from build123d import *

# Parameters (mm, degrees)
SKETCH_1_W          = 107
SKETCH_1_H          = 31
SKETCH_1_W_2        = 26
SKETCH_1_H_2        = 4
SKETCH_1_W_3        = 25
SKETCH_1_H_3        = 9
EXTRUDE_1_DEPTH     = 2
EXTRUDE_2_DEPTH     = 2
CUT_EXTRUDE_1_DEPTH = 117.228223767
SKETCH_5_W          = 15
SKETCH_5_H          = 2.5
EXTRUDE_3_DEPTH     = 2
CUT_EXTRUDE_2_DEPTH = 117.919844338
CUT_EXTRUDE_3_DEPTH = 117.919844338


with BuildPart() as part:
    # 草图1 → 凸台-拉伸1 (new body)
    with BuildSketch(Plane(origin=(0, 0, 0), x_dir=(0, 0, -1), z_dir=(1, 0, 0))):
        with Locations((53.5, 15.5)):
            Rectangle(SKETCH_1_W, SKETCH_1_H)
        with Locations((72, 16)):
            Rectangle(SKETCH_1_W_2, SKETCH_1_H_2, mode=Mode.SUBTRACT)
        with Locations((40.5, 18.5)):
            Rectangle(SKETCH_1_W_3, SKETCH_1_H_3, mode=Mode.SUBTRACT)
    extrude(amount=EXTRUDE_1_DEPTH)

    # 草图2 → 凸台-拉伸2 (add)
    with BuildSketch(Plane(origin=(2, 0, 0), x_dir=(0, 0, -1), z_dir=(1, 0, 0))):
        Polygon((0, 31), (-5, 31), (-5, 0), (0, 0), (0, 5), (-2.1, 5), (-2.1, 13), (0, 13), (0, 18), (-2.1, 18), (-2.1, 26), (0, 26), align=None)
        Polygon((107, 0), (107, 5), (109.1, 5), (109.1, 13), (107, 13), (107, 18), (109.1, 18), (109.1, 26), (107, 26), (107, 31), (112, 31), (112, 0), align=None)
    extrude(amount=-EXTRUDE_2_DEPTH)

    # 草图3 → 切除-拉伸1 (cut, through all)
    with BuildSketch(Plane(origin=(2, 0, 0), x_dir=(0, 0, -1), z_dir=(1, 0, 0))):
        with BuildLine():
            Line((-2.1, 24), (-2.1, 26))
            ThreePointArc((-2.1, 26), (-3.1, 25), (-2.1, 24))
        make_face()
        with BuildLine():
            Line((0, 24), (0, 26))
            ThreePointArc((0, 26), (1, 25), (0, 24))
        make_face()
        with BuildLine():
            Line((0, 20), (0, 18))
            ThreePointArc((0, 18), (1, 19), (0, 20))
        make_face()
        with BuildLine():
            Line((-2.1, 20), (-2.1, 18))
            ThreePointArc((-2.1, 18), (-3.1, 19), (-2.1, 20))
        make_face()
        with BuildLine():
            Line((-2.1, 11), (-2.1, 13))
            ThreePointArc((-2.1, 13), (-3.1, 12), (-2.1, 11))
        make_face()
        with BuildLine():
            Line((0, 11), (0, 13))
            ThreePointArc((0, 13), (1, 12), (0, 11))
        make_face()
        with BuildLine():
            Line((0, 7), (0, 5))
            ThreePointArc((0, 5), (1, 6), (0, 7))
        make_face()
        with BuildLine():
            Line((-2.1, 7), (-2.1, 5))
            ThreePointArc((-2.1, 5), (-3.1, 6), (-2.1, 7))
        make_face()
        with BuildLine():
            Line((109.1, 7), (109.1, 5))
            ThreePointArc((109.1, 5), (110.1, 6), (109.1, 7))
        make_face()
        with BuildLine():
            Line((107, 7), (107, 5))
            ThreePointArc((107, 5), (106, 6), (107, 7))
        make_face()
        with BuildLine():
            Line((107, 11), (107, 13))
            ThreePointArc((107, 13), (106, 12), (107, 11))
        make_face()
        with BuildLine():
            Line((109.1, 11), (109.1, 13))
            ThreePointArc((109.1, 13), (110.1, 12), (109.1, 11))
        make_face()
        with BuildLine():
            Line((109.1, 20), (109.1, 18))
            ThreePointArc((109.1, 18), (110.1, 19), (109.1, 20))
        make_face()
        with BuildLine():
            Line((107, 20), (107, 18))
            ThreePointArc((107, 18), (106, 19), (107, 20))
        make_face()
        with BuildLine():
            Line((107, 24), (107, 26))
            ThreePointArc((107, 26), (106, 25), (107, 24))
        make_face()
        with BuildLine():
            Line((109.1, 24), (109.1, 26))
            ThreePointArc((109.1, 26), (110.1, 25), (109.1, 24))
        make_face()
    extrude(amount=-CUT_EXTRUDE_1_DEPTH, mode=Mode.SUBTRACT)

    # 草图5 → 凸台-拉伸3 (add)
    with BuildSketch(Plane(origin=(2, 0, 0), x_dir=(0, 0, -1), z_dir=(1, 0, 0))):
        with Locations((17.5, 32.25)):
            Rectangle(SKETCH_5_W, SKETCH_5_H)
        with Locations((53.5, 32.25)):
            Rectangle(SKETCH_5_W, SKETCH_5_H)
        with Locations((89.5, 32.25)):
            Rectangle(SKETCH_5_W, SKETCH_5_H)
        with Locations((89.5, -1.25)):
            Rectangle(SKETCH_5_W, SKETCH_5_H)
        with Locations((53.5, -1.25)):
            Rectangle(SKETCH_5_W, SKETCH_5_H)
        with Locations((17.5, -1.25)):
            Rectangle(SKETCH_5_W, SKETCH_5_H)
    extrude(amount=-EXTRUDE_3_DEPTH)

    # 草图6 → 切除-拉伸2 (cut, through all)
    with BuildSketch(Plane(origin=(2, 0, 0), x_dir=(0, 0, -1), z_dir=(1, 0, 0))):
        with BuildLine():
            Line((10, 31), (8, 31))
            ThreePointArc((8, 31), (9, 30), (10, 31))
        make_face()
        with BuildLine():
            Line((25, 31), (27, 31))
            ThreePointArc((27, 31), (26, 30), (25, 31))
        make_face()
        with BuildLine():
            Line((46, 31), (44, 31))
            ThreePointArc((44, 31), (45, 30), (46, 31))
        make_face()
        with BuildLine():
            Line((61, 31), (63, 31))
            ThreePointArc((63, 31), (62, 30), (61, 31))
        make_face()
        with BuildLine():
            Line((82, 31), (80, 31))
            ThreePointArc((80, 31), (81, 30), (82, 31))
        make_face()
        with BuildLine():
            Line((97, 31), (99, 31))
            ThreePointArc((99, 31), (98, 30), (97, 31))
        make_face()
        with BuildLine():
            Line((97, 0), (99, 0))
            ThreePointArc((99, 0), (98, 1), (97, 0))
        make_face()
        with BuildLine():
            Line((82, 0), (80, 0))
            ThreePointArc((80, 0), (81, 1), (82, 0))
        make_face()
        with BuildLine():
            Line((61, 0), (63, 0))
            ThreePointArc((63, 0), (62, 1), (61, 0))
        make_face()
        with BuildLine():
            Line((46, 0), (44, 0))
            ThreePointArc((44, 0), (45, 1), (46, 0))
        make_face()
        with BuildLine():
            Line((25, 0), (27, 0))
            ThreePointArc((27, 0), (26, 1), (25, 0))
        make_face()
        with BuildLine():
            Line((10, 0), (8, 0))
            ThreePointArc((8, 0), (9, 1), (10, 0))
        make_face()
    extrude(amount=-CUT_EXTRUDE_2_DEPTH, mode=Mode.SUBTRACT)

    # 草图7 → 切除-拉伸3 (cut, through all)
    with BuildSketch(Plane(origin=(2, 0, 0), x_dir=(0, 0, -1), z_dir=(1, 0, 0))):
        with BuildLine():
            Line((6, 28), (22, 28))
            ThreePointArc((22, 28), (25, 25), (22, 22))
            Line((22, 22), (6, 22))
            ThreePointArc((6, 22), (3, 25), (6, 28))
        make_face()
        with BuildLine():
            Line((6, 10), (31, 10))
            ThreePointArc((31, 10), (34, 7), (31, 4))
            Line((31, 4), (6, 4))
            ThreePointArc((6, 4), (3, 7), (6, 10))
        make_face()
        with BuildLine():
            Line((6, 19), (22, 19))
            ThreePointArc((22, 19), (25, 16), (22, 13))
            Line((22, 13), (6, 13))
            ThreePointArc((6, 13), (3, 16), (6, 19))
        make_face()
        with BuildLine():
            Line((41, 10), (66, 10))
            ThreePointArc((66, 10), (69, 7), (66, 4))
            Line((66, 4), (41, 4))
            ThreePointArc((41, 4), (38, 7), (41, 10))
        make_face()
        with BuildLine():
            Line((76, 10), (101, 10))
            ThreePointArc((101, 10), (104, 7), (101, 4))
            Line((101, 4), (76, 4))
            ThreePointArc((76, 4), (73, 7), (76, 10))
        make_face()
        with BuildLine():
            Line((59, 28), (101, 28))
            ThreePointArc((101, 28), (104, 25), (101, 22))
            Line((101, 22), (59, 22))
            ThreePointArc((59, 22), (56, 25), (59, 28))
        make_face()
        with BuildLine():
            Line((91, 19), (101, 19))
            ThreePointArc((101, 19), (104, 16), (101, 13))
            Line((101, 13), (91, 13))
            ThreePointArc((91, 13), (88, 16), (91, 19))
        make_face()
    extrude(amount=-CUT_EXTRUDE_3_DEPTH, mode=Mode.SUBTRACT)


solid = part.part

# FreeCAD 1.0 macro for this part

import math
import FreeCAD as App
import Part
import Sketcher
Q = App.Units.Quantity

doc = App.newDocument("Part")
body = doc.addObject("PartDesign::Body", "Body")

sketch1 = doc.addObject("Sketcher::SketchObject", "Sketch")
body.addObject(sketch1)
sketch1.AttachmentSupport = (doc.YZ_Plane, [""])
sketch1.MapMode = "FlatFace"
sketch1.addGeometry([
    Part.LineSegment(App.Vector(31, 0, 0), App.Vector(0, 0, 0)),
    Part.LineSegment(App.Vector(0, 0, 0), App.Vector(0, -107, 0)),
    Part.LineSegment(App.Vector(0, -107, 0), App.Vector(31, -107, 0)),
    Part.LineSegment(App.Vector(31, -107, 0), App.Vector(31, 0, 0)),
    Part.LineSegment(App.Vector(14, -85, 0), App.Vector(14, -59, 0)),
    Part.LineSegment(App.Vector(14, -59, 0), App.Vector(18, -59, 0)),
    Part.LineSegment(App.Vector(18, -59, 0), App.Vector(18, -85, 0)),
    Part.LineSegment(App.Vector(18, -85, 0), App.Vector(14, -85, 0)),
    Part.LineSegment(App.Vector(14, -53, 0), App.Vector(14, -28, 0)),
    Part.LineSegment(App.Vector(14, -28, 0), App.Vector(23, -28, 0)),
    Part.LineSegment(App.Vector(23, -28, 0), App.Vector(23, -53, 0)),
    Part.LineSegment(App.Vector(23, -53, 0), App.Vector(14, -53, 0)),
], False)
sketch1.addConstraint([
    Sketcher.Constraint("Coincident", 0, 2, 1, 1),
    Sketcher.Constraint("Coincident", 1, 2, 2, 1),
    Sketcher.Constraint("Coincident", 2, 2, 3, 1),
    Sketcher.Constraint("Coincident", 3, 2, 0, 1),
    Sketcher.Constraint("Coincident", 4, 2, 5, 1),
    Sketcher.Constraint("Coincident", 5, 2, 6, 1),
    Sketcher.Constraint("Coincident", 6, 2, 7, 1),
    Sketcher.Constraint("Coincident", 7, 2, 4, 1),
    Sketcher.Constraint("Coincident", 8, 2, 9, 1),
    Sketcher.Constraint("Coincident", 9, 2, 10, 1),
    Sketcher.Constraint("Coincident", 10, 2, 11, 1),
    Sketcher.Constraint("Coincident", 11, 2, 8, 1),
    Sketcher.Constraint("Horizontal", 0),
    Sketcher.Constraint("Vertical", 1),
    Sketcher.Constraint("Horizontal", 2),
    Sketcher.Constraint("Vertical", 3),
    Sketcher.Constraint("Vertical", 4),
    Sketcher.Constraint("Horizontal", 5),
    Sketcher.Constraint("Vertical", 6),
    Sketcher.Constraint("Horizontal", 7),
    Sketcher.Constraint("Vertical", 8),
    Sketcher.Constraint("Horizontal", 9),
    Sketcher.Constraint("Vertical", 10),
    Sketcher.Constraint("Horizontal", 11),
    Sketcher.Constraint("Coincident", 0, 2, -1, 1),
    Sketcher.Constraint("Vertical", 7, 2, 8, 2),
    Sketcher.Constraint("DistanceX", 0, 2, 0, 1, Q("31 mm")),
    Sketcher.Constraint("DistanceX", 5, 1, 5, 2, Q("4 mm")),
    Sketcher.Constraint("DistanceX", 9, 1, 9, 2, Q("9 mm")),
    Sketcher.Constraint("DistanceY", 1, 2, 1, 1, Q("107 mm")),
    Sketcher.Constraint("DistanceY", 4, 1, 4, 2, Q("26 mm")),
    Sketcher.Constraint("DistanceY", 8, 1, 8, 2, Q("25 mm")),
    Sketcher.Constraint("DistanceX", -1, 1, 4, 2, Q("14 mm")),
    Sketcher.Constraint("DistanceY", 4, 2, -1, 1, Q("59 mm")),
    Sketcher.Constraint("DistanceY", 8, 2, -1, 1, Q("28 mm")),
])
pad1 = doc.addObject("PartDesign::Pad", "Pad")
body.addObject(pad1)
pad1.Profile = sketch1
pad1.Length = 2

sketch2 = doc.addObject("Sketcher::SketchObject", "Sketch001")
body.addObject(sketch2)
sketch2.AttachmentSupport = (doc.YZ_Plane, [""])
sketch2.MapMode = "FlatFace"
sketch2.AttachmentOffset = App.Placement(App.Vector(0, 0, 2), App.Rotation())
sketch2.addGeometry([
    Part.LineSegment(App.Vector(31, 0, 0), App.Vector(31, 5, 0)),
    Part.LineSegment(App.Vector(31, 5, 0), App.Vector(0, 5, 0)),
    Part.LineSegment(App.Vector(0, 5, 0), App.Vector(0, 0, 0)),
    Part.LineSegment(App.Vector(0, 0, 0), App.Vector(5, 0, 0)),
    Part.LineSegment(App.Vector(5, 0, 0), App.Vector(5, 2.1, 0)),
    Part.LineSegment(App.Vector(5, 2.1, 0), App.Vector(13, 2.1, 0)),
    Part.LineSegment(App.Vector(13, 2.1, 0), App.Vector(13, 0, 0)),
    Part.LineSegment(App.Vector(13, 0, 0), App.Vector(18, 0, 0)),
    Part.LineSegment(App.Vector(18, 0, 0), App.Vector(18, 2.1, 0)),
    Part.LineSegment(App.Vector(18, 2.1, 0), App.Vector(26, 2.1, 0)),
    Part.LineSegment(App.Vector(26, 2.1, 0), App.Vector(26, 0, 0)),
    Part.LineSegment(App.Vector(26, 0, 0), App.Vector(31, 0, 0)),
    Part.LineSegment(App.Vector(5, -107, 0), App.Vector(0, -107, 0)),
    Part.LineSegment(App.Vector(0, -107, 0), App.Vector(0, -112, 0)),
    Part.LineSegment(App.Vector(0, -112, 0), App.Vector(31, -112, 0)),
    Part.LineSegment(App.Vector(31, -112, 0), App.Vector(31, -107, 0)),
    Part.LineSegment(App.Vector(31, -107, 0), App.Vector(26, -107, 0)),
    Part.LineSegment(App.Vector(26, -107, 0), App.Vector(26, -109.1, 0)),
    Part.LineSegment(App.Vector(26, -109.1, 0), App.Vector(18, -109.1, 0)),
    Part.LineSegment(App.Vector(18, -109.1, 0), App.Vector(18, -107, 0)),
    Part.LineSegment(App.Vector(18, -107, 0), App.Vector(13, -107, 0)),
    Part.LineSegment(App.Vector(13, -107, 0), App.Vector(13, -109.1, 0)),
    Part.LineSegment(App.Vector(13, -109.1, 0), App.Vector(5, -109.1, 0)),
    Part.LineSegment(App.Vector(5, -109.1, 0), App.Vector(5, -107, 0)),
], False)
sketch2.addConstraint([
    Sketcher.Constraint("Coincident", 0, 2, 1, 1),
    Sketcher.Constraint("Coincident", 1, 2, 2, 1),
    Sketcher.Constraint("Coincident", 2, 2, 3, 1),
    Sketcher.Constraint("Coincident", 3, 2, 4, 1),
    Sketcher.Constraint("Coincident", 4, 2, 5, 1),
    Sketcher.Constraint("Coincident", 5, 2, 6, 1),
    Sketcher.Constraint("Coincident", 6, 2, 7, 1),
    Sketcher.Constraint("Coincident", 7, 2, 8, 1),
    Sketcher.Constraint("Coincident", 8, 2, 9, 1),
    Sketcher.Constraint("Coincident", 9, 2, 10, 1),
    Sketcher.Constraint("Coincident", 10, 2, 11, 1),
    Sketcher.Constraint("Coincident", 11, 2, 0, 1),
    Sketcher.Constraint("Coincident", 12, 2, 13, 1),
    Sketcher.Constraint("Coincident", 13, 2, 14, 1),
    Sketcher.Constraint("Coincident", 14, 2, 15, 1),
    Sketcher.Constraint("Coincident", 15, 2, 16, 1),
    Sketcher.Constraint("Coincident", 16, 2, 17, 1),
    Sketcher.Constraint("Coincident", 17, 2, 18, 1),
    Sketcher.Constraint("Coincident", 18, 2, 19, 1),
    Sketcher.Constraint("Coincident", 19, 2, 20, 1),
    Sketcher.Constraint("Coincident", 20, 2, 21, 1),
    Sketcher.Constraint("Coincident", 21, 2, 22, 1),
    Sketcher.Constraint("Coincident", 22, 2, 23, 1),
    Sketcher.Constraint("Coincident", 23, 2, 12, 1),
    Sketcher.Constraint("Vertical", 0),
    Sketcher.Constraint("Horizontal", 1),
    Sketcher.Constraint("Vertical", 2),
    Sketcher.Constraint("Horizontal", 3),
    Sketcher.Constraint("Vertical", 4),
    Sketcher.Constraint("Horizontal", 5),
    Sketcher.Constraint("Vertical", 6),
    Sketcher.Constraint("Horizontal", 7),
    Sketcher.Constraint("Vertical", 8),
    Sketcher.Constraint("Horizontal", 9),
    Sketcher.Constraint("Vertical", 10),
    Sketcher.Constraint("Horizontal", 11),
    Sketcher.Constraint("Horizontal", 12),
    Sketcher.Constraint("Vertical", 13),
    Sketcher.Constraint("Horizontal", 14),
    Sketcher.Constraint("Vertical", 15),
    Sketcher.Constraint("Horizontal", 16),
    Sketcher.Constraint("Vertical", 17),
    Sketcher.Constraint("Horizontal", 18),
    Sketcher.Constraint("Vertical", 19),
    Sketcher.Constraint("Horizontal", 20),
    Sketcher.Constraint("Vertical", 21),
    Sketcher.Constraint("Horizontal", 22),
    Sketcher.Constraint("Vertical", 23),
    Sketcher.Constraint("Coincident", 2, 2, -1, 1),
    Sketcher.Constraint("PointOnObject", 6, 2, -1),
    Sketcher.Constraint("PointOnObject", 10, 2, -1),
    Sketcher.Constraint("PointOnObject", 12, 2, -2),
    Sketcher.Constraint("Horizontal", 5, 2, 8, 2),
    Sketcher.Constraint("Horizontal", 12, 2, 15, 2),
    Sketcher.Constraint("Horizontal", 16, 2, 19, 2),
    Sketcher.Constraint("Horizontal", 18, 2, 21, 2),
    Sketcher.Constraint("Vertical", 11, 2, 14, 2),
    Sketcher.Constraint("Vertical", 10, 2, 16, 2),
    Sketcher.Constraint("Vertical", 8, 2, 18, 2),
    Sketcher.Constraint("Vertical", 6, 2, 20, 2),
    Sketcher.Constraint("Vertical", 4, 2, 22, 2),
    Sketcher.Constraint("Equal", 3, 7),
    Sketcher.Constraint("Equal", 5, 9),
    Sketcher.Constraint("Equal", 7, 11),
    Sketcher.Constraint("Equal", 20, 0),
    Sketcher.Constraint("Equal", 2, 13),
    Sketcher.Constraint("Equal", 10, 17),
    Sketcher.Constraint("DistanceX", 1, 2, 1, 1, Q("31 mm")),
    Sketcher.Constraint("DistanceX", 3, 1, 3, 2, Q("5 mm")),
    Sketcher.Constraint("DistanceY", 4, 1, 4, 2, Q("2.1 mm")),
    Sketcher.Constraint("DistanceY", 12, 2, -1, 1, Q("107 mm")),
])
pad2 = doc.addObject("PartDesign::Pad", "Pad001")
body.addObject(pad2)
pad2.Profile = sketch2
pad2.Length = 2
pad2.Reversed = True

sketch3 = doc.addObject("Sketcher::SketchObject", "Sketch002")
body.addObject(sketch3)
sketch3.AttachmentSupport = (doc.YZ_Plane, [""])
sketch3.MapMode = "FlatFace"
sketch3.AttachmentOffset = App.Placement(App.Vector(0, 0, 2), App.Rotation())
sketch3.addGeometry([
    Part.LineSegment(App.Vector(24, 2.1, 0), App.Vector(26, 2.1, 0)),
    Part.ArcOfCircle(Part.Circle(App.Vector(25, 2.1, 0), App.Vector(0, 0, 1), 1), math.radians(0), math.radians(180)),
    Part.LineSegment(App.Vector(26, 0, 0), App.Vector(24, 0, 0)),
    Part.ArcOfCircle(Part.Circle(App.Vector(25, 0, 0), App.Vector(0, 0, 1), 1), math.radians(180), math.radians(360)),
    Part.LineSegment(App.Vector(20, 0, 0), App.Vector(18, 0, 0)),
    Part.ArcOfCircle(Part.Circle(App.Vector(19, 0, 0), App.Vector(0, 0, 1), 1), math.radians(180), math.radians(360)),
    Part.LineSegment(App.Vector(18, 2.1, 0), App.Vector(20, 2.1, 0)),
    Part.ArcOfCircle(Part.Circle(App.Vector(19, 2.1, 0), App.Vector(0, 0, 1), 1), math.radians(0), math.radians(180)),
    Part.LineSegment(App.Vector(11, 2.1, 0), App.Vector(13, 2.1, 0)),
    Part.ArcOfCircle(Part.Circle(App.Vector(12, 2.1, 0), App.Vector(0, 0, 1), 1), math.radians(0), math.radians(180)),
    Part.LineSegment(App.Vector(13, 0, 0), App.Vector(11, 0, 0)),
    Part.ArcOfCircle(Part.Circle(App.Vector(12, 0, 0), App.Vector(0, 0, 1), 1), math.radians(180), math.radians(360)),
    Part.LineSegment(App.Vector(7, 0, 0), App.Vector(5, 0, 0)),
    Part.ArcOfCircle(Part.Circle(App.Vector(6, 0, 0), App.Vector(0, 0, 1), 1), math.radians(180), math.radians(360)),
    Part.LineSegment(App.Vector(5, 2.1, 0), App.Vector(7, 2.1, 0)),
    Part.ArcOfCircle(Part.Circle(App.Vector(6, 2.1, 0), App.Vector(0, 0, 1), 1), math.radians(0), math.radians(180)),
    Part.LineSegment(App.Vector(7, -109.1, 0), App.Vector(5, -109.1, 0)),
    Part.ArcOfCircle(Part.Circle(App.Vector(6, -109.1, 0), App.Vector(0, 0, 1), 1), math.radians(180), math.radians(360)),
    Part.LineSegment(App.Vector(5, -107, 0), App.Vector(7, -107, 0)),
    Part.ArcOfCircle(Part.Circle(App.Vector(6, -107, 0), App.Vector(0, 0, 1), 1), math.radians(0), math.radians(180)),
    Part.LineSegment(App.Vector(11, -107, 0), App.Vector(13, -107, 0)),
    Part.ArcOfCircle(Part.Circle(App.Vector(12, -107, 0), App.Vector(0, 0, 1), 1), math.radians(0), math.radians(180)),
    Part.LineSegment(App.Vector(13, -109.1, 0), App.Vector(11, -109.1, 0)),
    Part.ArcOfCircle(Part.Circle(App.Vector(12, -109.1, 0), App.Vector(0, 0, 1), 1), math.radians(180), math.radians(360)),
    Part.LineSegment(App.Vector(20, -109.1, 0), App.Vector(18, -109.1, 0)),
    Part.ArcOfCircle(Part.Circle(App.Vector(19, -109.1, 0), App.Vector(0, 0, 1), 1), math.radians(180), math.radians(360)),
    Part.LineSegment(App.Vector(18, -107, 0), App.Vector(20, -107, 0)),
    Part.ArcOfCircle(Part.Circle(App.Vector(19, -107, 0), App.Vector(0, 0, 1), 1), math.radians(0), math.radians(180)),
    Part.LineSegment(App.Vector(24, -107, 0), App.Vector(26, -107, 0)),
    Part.ArcOfCircle(Part.Circle(App.Vector(25, -107, 0), App.Vector(0, 0, 1), 1), math.radians(0), math.radians(180)),
    Part.LineSegment(App.Vector(26, -109.1, 0), App.Vector(24, -109.1, 0)),
    Part.ArcOfCircle(Part.Circle(App.Vector(25, -109.1, 0), App.Vector(0, 0, 1), 1), math.radians(180), math.radians(360)),
], False)
sketch3.addConstraint([
    Sketcher.Constraint("Coincident", 0, 1, 1, 2),
    Sketcher.Constraint("Coincident", 1, 1, 0, 2),
    Sketcher.Constraint("Coincident", 2, 1, 3, 2),
    Sketcher.Constraint("Coincident", 3, 1, 2, 2),
    Sketcher.Constraint("Coincident", 4, 1, 5, 2),
    Sketcher.Constraint("Coincident", 5, 1, 4, 2),
    Sketcher.Constraint("Coincident", 6, 1, 7, 2),
    Sketcher.Constraint("Coincident", 7, 1, 6, 2),
    Sketcher.Constraint("Coincident", 8, 1, 9, 2),
    Sketcher.Constraint("Coincident", 9, 1, 8, 2),
    Sketcher.Constraint("Coincident", 10, 1, 11, 2),
    Sketcher.Constraint("Coincident", 11, 1, 10, 2),
    Sketcher.Constraint("Coincident", 12, 1, 13, 2),
    Sketcher.Constraint("Coincident", 13, 1, 12, 2),
    Sketcher.Constraint("Coincident", 14, 1, 15, 2),
    Sketcher.Constraint("Coincident", 15, 1, 14, 2),
    Sketcher.Constraint("Coincident", 16, 1, 17, 2),
    Sketcher.Constraint("Coincident", 17, 1, 16, 2),
    Sketcher.Constraint("Coincident", 18, 1, 19, 2),
    Sketcher.Constraint("Coincident", 19, 1, 18, 2),
    Sketcher.Constraint("Coincident", 20, 1, 21, 2),
    Sketcher.Constraint("Coincident", 21, 1, 20, 2),
    Sketcher.Constraint("Coincident", 22, 1, 23, 2),
    Sketcher.Constraint("Coincident", 23, 1, 22, 2),
    Sketcher.Constraint("Coincident", 24, 1, 25, 2),
    Sketcher.Constraint("Coincident", 25, 1, 24, 2),
    Sketcher.Constraint("Coincident", 26, 1, 27, 2),
    Sketcher.Constraint("Coincident", 27, 1, 26, 2),
    Sketcher.Constraint("Coincident", 28, 1, 29, 2),
    Sketcher.Constraint("Coincident", 29, 1, 28, 2),
    Sketcher.Constraint("Coincident", 30, 1, 31, 2),
    Sketcher.Constraint("Coincident", 31, 1, 30, 2),
    Sketcher.Constraint("Horizontal", 0),
    Sketcher.Constraint("Horizontal", 2),
    Sketcher.Constraint("Horizontal", 4),
    Sketcher.Constraint("Horizontal", 6),
    Sketcher.Constraint("Horizontal", 8),
    Sketcher.Constraint("Horizontal", 10),
    Sketcher.Constraint("Horizontal", 12),
    Sketcher.Constraint("Horizontal", 14),
    Sketcher.Constraint("Horizontal", 16),
    Sketcher.Constraint("Horizontal", 18),
    Sketcher.Constraint("Horizontal", 20),
    Sketcher.Constraint("Horizontal", 22),
    Sketcher.Constraint("Horizontal", 24),
    Sketcher.Constraint("Horizontal", 26),
    Sketcher.Constraint("Horizontal", 28),
    Sketcher.Constraint("Horizontal", 30),
    Sketcher.Constraint("Equal", 1, 3),
    Sketcher.Constraint("Equal", 3, 5),
    Sketcher.Constraint("Equal", 5, 7),
    Sketcher.Constraint("Equal", 7, 9),
    Sketcher.Constraint("Equal", 9, 11),
    Sketcher.Constraint("Equal", 11, 13),
    Sketcher.Constraint("Equal", 13, 15),
    Sketcher.Constraint("Equal", 15, 17),
    Sketcher.Constraint("Equal", 17, 19),
    Sketcher.Constraint("Equal", 19, 21),
    Sketcher.Constraint("Equal", 21, 23),
    Sketcher.Constraint("Equal", 23, 25),
    Sketcher.Constraint("Equal", 25, 27),
    Sketcher.Constraint("Equal", 27, 29),
    Sketcher.Constraint("Equal", 29, 31),
    Sketcher.Constraint("PointOnObject", 3, 3, -1),
    Sketcher.Constraint("PointOnObject", 5, 3, -1),
    Sketcher.Constraint("PointOnObject", 11, 3, -1),
    Sketcher.Constraint("PointOnObject", 13, 3, -1),
    Sketcher.Constraint("PointOnObject", 2, 1, -1),
    Sketcher.Constraint("PointOnObject", 4, 1, -1),
    Sketcher.Constraint("PointOnObject", 10, 1, -1),
    Sketcher.Constraint("PointOnObject", 12, 1, -1),
    Sketcher.Constraint("Horizontal", 1, 3, 7, 3),
    Sketcher.Constraint("Horizontal", 7, 3, 9, 3),
    Sketcher.Constraint("Horizontal", 9, 3, 15, 3),
    Sketcher.Constraint("Horizontal", 19, 3, 21, 3),
    Sketcher.Constraint("Horizontal", 17, 3, 23, 3),
    Sketcher.Constraint("Horizontal", 23, 3, 25, 3),
    Sketcher.Constraint("Horizontal", 21, 3, 27, 3),
    Sketcher.Constraint("Horizontal", 27, 3, 29, 3),
    Sketcher.Constraint("Horizontal", 25, 3, 31, 3),
    Sketcher.Constraint("Horizontal", 15, 3, 0, 1),
    Sketcher.Constraint("Horizontal", 1, 1, 6, 1),
    Sketcher.Constraint("Horizontal", 7, 1, 8, 1),
    Sketcher.Constraint("Horizontal", 9, 1, 14, 1),
    Sketcher.Constraint("Horizontal", 31, 3, 16, 1),
    Sketcher.Constraint("Horizontal", 29, 3, 18, 1),
    Sketcher.Constraint("Horizontal", 19, 1, 20, 1),
    Sketcher.Constraint("Horizontal", 17, 1, 22, 1),
    Sketcher.Constraint("Horizontal", 23, 1, 24, 1),
    Sketcher.Constraint("Horizontal", 21, 1, 26, 1),
    Sketcher.Constraint("Horizontal", 27, 1, 28, 1),
    Sketcher.Constraint("Horizontal", 25, 1, 30, 1),
    Sketcher.Constraint("Vertical", 1, 3, 3, 3),
    Sketcher.Constraint("Vertical", 5, 3, 7, 3),
    Sketcher.Constraint("Vertical", 9, 3, 11, 3),
    Sketcher.Constraint("Vertical", 13, 3, 15, 3),
    Sketcher.Constraint("Vertical", 15, 3, 17, 3),
    Sketcher.Constraint("Vertical", 17, 3, 19, 3),
    Sketcher.Constraint("Vertical", 11, 3, 21, 3),
    Sketcher.Constraint("Vertical", 21, 3, 23, 3),
    Sketcher.Constraint("Vertical", 7, 3, 25, 3),
    Sketcher.Constraint("Vertical", 25, 3, 27, 3),
    Sketcher.Constraint("Vertical", 3, 3, 29, 3),
    Sketcher.Constraint("Vertical", 29, 3, 31, 3),
    Sketcher.Constraint("Radius", 1, Q("1 mm")),
    Sketcher.Constraint("DistanceX", -1, 1, 1, 3, Q("25 mm")),
    Sketcher.Constraint("DistanceX", -1, 1, 5, 3, Q("19 mm")),
    Sketcher.Constraint("DistanceX", -1, 1, 9, 3, Q("12 mm")),
    Sketcher.Constraint("DistanceX", -1, 1, 13, 3, Q("6 mm")),
    Sketcher.Constraint("DistanceY", 19, 3, -1, 1, Q("107 mm")),
    Sketcher.Constraint("DistanceY", -1, 1, 1, 3, Q("2.1 mm")),
    Sketcher.Constraint("DistanceY", 17, 3, -1, 1, Q("109.1 mm")),
])
pocket1 = doc.addObject("PartDesign::Pocket", "Pocket")
body.addObject(pocket1)
pocket1.Profile = sketch3
pocket1.Type = "ThroughAll"

sketch4 = doc.addObject("Sketcher::SketchObject", "Sketch003")
body.addObject(sketch4)
sketch4.AttachmentSupport = (doc.YZ_Plane, [""])
sketch4.MapMode = "FlatFace"
sketch4.AttachmentOffset = App.Placement(App.Vector(0, 0, 2), App.Rotation())
sketch4.addGeometry([
    Part.LineSegment(App.Vector(33.5, -10, 0), App.Vector(31, -10, 0)),
    Part.LineSegment(App.Vector(31, -10, 0), App.Vector(31, -25, 0)),
    Part.LineSegment(App.Vector(31, -25, 0), App.Vector(33.5, -25, 0)),
    Part.LineSegment(App.Vector(33.5, -25, 0), App.Vector(33.5, -10, 0)),
    Part.LineSegment(App.Vector(33.5, -46, 0), App.Vector(31, -46, 0)),
    Part.LineSegment(App.Vector(31, -46, 0), App.Vector(31, -61, 0)),
    Part.LineSegment(App.Vector(31, -61, 0), App.Vector(33.5, -61, 0)),
    Part.LineSegment(App.Vector(33.5, -61, 0), App.Vector(33.5, -46, 0)),
    Part.LineSegment(App.Vector(33.5, -82, 0), App.Vector(31, -82, 0)),
    Part.LineSegment(App.Vector(31, -82, 0), App.Vector(31, -97, 0)),
    Part.LineSegment(App.Vector(31, -97, 0), App.Vector(33.5, -97, 0)),
    Part.LineSegment(App.Vector(33.5, -97, 0), App.Vector(33.5, -82, 0)),
    Part.LineSegment(App.Vector(0, -82, 0), App.Vector(-2.5, -82, 0)),
    Part.LineSegment(App.Vector(-2.5, -82, 0), App.Vector(-2.5, -97, 0)),
    Part.LineSegment(App.Vector(-2.5, -97, 0), App.Vector(0, -97, 0)),
    Part.LineSegment(App.Vector(0, -97, 0), App.Vector(0, -82, 0)),
    Part.LineSegment(App.Vector(0, -46, 0), App.Vector(-2.5, -46, 0)),
    Part.LineSegment(App.Vector(-2.5, -46, 0), App.Vector(-2.5, -61, 0)),
    Part.LineSegment(App.Vector(-2.5, -61, 0), App.Vector(0, -61, 0)),
    Part.LineSegment(App.Vector(0, -61, 0), App.Vector(0, -46, 0)),
    Part.LineSegment(App.Vector(0, -10, 0), App.Vector(-2.5, -10, 0)),
    Part.LineSegment(App.Vector(-2.5, -10, 0), App.Vector(-2.5, -25, 0)),
    Part.LineSegment(App.Vector(-2.5, -25, 0), App.Vector(0, -25, 0)),
    Part.LineSegment(App.Vector(0, -25, 0), App.Vector(0, -10, 0)),
], False)
sketch4.addConstraint([
    Sketcher.Constraint("Coincident", 0, 2, 1, 1),
    Sketcher.Constraint("Coincident", 1, 2, 2, 1),
    Sketcher.Constraint("Coincident", 2, 2, 3, 1),
    Sketcher.Constraint("Coincident", 3, 2, 0, 1),
    Sketcher.Constraint("Coincident", 4, 2, 5, 1),
    Sketcher.Constraint("Coincident", 5, 2, 6, 1),
    Sketcher.Constraint("Coincident", 6, 2, 7, 1),
    Sketcher.Constraint("Coincident", 7, 2, 4, 1),
    Sketcher.Constraint("Coincident", 8, 2, 9, 1),
    Sketcher.Constraint("Coincident", 9, 2, 10, 1),
    Sketcher.Constraint("Coincident", 10, 2, 11, 1),
    Sketcher.Constraint("Coincident", 11, 2, 8, 1),
    Sketcher.Constraint("Coincident", 12, 2, 13, 1),
    Sketcher.Constraint("Coincident", 13, 2, 14, 1),
    Sketcher.Constraint("Coincident", 14, 2, 15, 1),
    Sketcher.Constraint("Coincident", 15, 2, 12, 1),
    Sketcher.Constraint("Coincident", 16, 2, 17, 1),
    Sketcher.Constraint("Coincident", 17, 2, 18, 1),
    Sketcher.Constraint("Coincident", 18, 2, 19, 1),
    Sketcher.Constraint("Coincident", 19, 2, 16, 1),
    Sketcher.Constraint("Coincident", 20, 2, 21, 1),
    Sketcher.Constraint("Coincident", 21, 2, 22, 1),
    Sketcher.Constraint("Coincident", 22, 2, 23, 1),
    Sketcher.Constraint("Coincident", 23, 2, 20, 1),
    Sketcher.Constraint("Horizontal", 0),
    Sketcher.Constraint("Vertical", 1),
    Sketcher.Constraint("Horizontal", 2),
    Sketcher.Constraint("Vertical", 3),
    Sketcher.Constraint("Horizontal", 4),
    Sketcher.Constraint("Vertical", 5),
    Sketcher.Constraint("Horizontal", 6),
    Sketcher.Constraint("Vertical", 7),
    Sketcher.Constraint("Horizontal", 8),
    Sketcher.Constraint("Vertical", 9),
    Sketcher.Constraint("Horizontal", 10),
    Sketcher.Constraint("Vertical", 11),
    Sketcher.Constraint("Horizontal", 12),
    Sketcher.Constraint("Vertical", 13),
    Sketcher.Constraint("Horizontal", 14),
    Sketcher.Constraint("Vertical", 15),
    Sketcher.Constraint("Horizontal", 16),
    Sketcher.Constraint("Vertical", 17),
    Sketcher.Constraint("Horizontal", 18),
    Sketcher.Constraint("Vertical", 19),
    Sketcher.Constraint("Horizontal", 20),
    Sketcher.Constraint("Vertical", 21),
    Sketcher.Constraint("Horizontal", 22),
    Sketcher.Constraint("Vertical", 23),
    Sketcher.Constraint("PointOnObject", 14, 2, -2),
    Sketcher.Constraint("PointOnObject", 18, 2, -2),
    Sketcher.Constraint("PointOnObject", 22, 2, -2),
    Sketcher.Constraint("Horizontal", 11, 2, 12, 2),
    Sketcher.Constraint("Horizontal", 10, 2, 13, 2),
    Sketcher.Constraint("Horizontal", 7, 2, 16, 2),
    Sketcher.Constraint("Horizontal", 6, 2, 17, 2),
    Sketcher.Constraint("Horizontal", 3, 2, 20, 2),
    Sketcher.Constraint("Horizontal", 2, 2, 21, 2),
    Sketcher.Constraint("Vertical", 1, 2, 4, 2),
    Sketcher.Constraint("Vertical", 3, 2, 6, 2),
    Sketcher.Constraint("Vertical", 5, 2, 8, 2),
    Sketcher.Constraint("Vertical", 7, 2, 10, 2),
    Sketcher.Constraint("Vertical", 13, 2, 16, 2),
    Sketcher.Constraint("Vertical", 17, 2, 20, 2),
    Sketcher.Constraint("Equal", 10, 12),
    Sketcher.Constraint("Equal", 3, 5),
    Sketcher.Constraint("Equal", 7, 9),
    Sketcher.Constraint("DistanceY", 1, 2, 1, 1, Q("15 mm")),
    Sketcher.Constraint("DistanceX", 0, 2, 0, 1, Q("2.5 mm")),
    Sketcher.Constraint("DistanceX", -1, 1, 0, 2, Q("31 mm")),
    Sketcher.Constraint("DistanceY", 0, 2, -1, 1, Q("10 mm")),
    Sketcher.Constraint("DistanceY", 4, 2, -1, 1, Q("46 mm")),
    Sketcher.Constraint("DistanceY", 8, 2, -1, 1, Q("82 mm")),
])
pad3 = doc.addObject("PartDesign::Pad", "Pad002")
body.addObject(pad3)
pad3.Profile = sketch4
pad3.Length = 2
pad3.Reversed = True

sketch5 = doc.addObject("Sketcher::SketchObject", "Sketch004")
body.addObject(sketch5)
sketch5.AttachmentSupport = (doc.YZ_Plane, [""])
sketch5.MapMode = "FlatFace"
sketch5.AttachmentOffset = App.Placement(App.Vector(0, 0, 2), App.Rotation())
sketch5.addGeometry([
    Part.LineSegment(App.Vector(31, -10, 0), App.Vector(31, -8, 0)),
    Part.ArcOfCircle(Part.Circle(App.Vector(31, -9, 0), App.Vector(0, 0, 1), 1), math.radians(90), math.radians(270)),
    Part.LineSegment(App.Vector(31, -27, 0), App.Vector(31, -25, 0)),
    Part.ArcOfCircle(Part.Circle(App.Vector(31, -26, 0), App.Vector(0, 0, 1), 1), math.radians(90), math.radians(270)),
    Part.LineSegment(App.Vector(31, -46, 0), App.Vector(31, -44, 0)),
    Part.ArcOfCircle(Part.Circle(App.Vector(31, -45, 0), App.Vector(0, 0, 1), 1), math.radians(90), math.radians(270)),
    Part.LineSegment(App.Vector(31, -63, 0), App.Vector(31, -61, 0)),
    Part.ArcOfCircle(Part.Circle(App.Vector(31, -62, 0), App.Vector(0, 0, 1), 1), math.radians(90), math.radians(270)),
    Part.LineSegment(App.Vector(31, -82, 0), App.Vector(31, -80, 0)),
    Part.ArcOfCircle(Part.Circle(App.Vector(31, -81, 0), App.Vector(0, 0, 1), 1), math.radians(90), math.radians(270)),
    Part.LineSegment(App.Vector(31, -99, 0), App.Vector(31, -97, 0)),
    Part.ArcOfCircle(Part.Circle(App.Vector(31, -98, 0), App.Vector(0, 0, 1), 1), math.radians(90), math.radians(270)),
    Part.LineSegment(App.Vector(0, -97, 0), App.Vector(0, -99, 0)),
    Part.ArcOfCircle(Part.Circle(App.Vector(0, -98, 0), App.Vector(0, 0, 1), 1), math.radians(-90), math.radians(90)),
    Part.LineSegment(App.Vector(0, -80, 0), App.Vector(0, -82, 0)),
    Part.ArcOfCircle(Part.Circle(App.Vector(0, -81, 0), App.Vector(0, 0, 1), 1), math.radians(-90), math.radians(90)),
    Part.LineSegment(App.Vector(0, -61, 0), App.Vector(0, -63, 0)),
    Part.ArcOfCircle(Part.Circle(App.Vector(0, -62, 0), App.Vector(0, 0, 1), 1), math.radians(-90), math.radians(90)),
    Part.LineSegment(App.Vector(0, -44, 0), App.Vector(0, -46, 0)),
    Part.ArcOfCircle(Part.Circle(App.Vector(0, -45, 0), App.Vector(0, 0, 1), 1), math.radians(-90), math.radians(90)),
    Part.LineSegment(App.Vector(0, -25, 0), App.Vector(0, -27, 0)),
    Part.ArcOfCircle(Part.Circle(App.Vector(0, -26, 0), App.Vector(0, 0, 1), 1), math.radians(-90), math.radians(90)),
    Part.LineSegment(App.Vector(0, -8, 0), App.Vector(0, -10, 0)),
    Part.ArcOfCircle(Part.Circle(App.Vector(0, -9, 0), App.Vector(0, 0, 1), 1), math.radians(-90), math.radians(90)),
], False)
sketch5.addConstraint([
    Sketcher.Constraint("Coincident", 0, 1, 1, 2),
    Sketcher.Constraint("Coincident", 1, 1, 0, 2),
    Sketcher.Constraint("Coincident", 2, 1, 3, 2),
    Sketcher.Constraint("Coincident", 3, 1, 2, 2),
    Sketcher.Constraint("Coincident", 4, 1, 5, 2),
    Sketcher.Constraint("Coincident", 5, 1, 4, 2),
    Sketcher.Constraint("Coincident", 6, 1, 7, 2),
    Sketcher.Constraint("Coincident", 7, 1, 6, 2),
    Sketcher.Constraint("Coincident", 8, 1, 9, 2),
    Sketcher.Constraint("Coincident", 9, 1, 8, 2),
    Sketcher.Constraint("Coincident", 10, 1, 11, 2),
    Sketcher.Constraint("Coincident", 11, 1, 10, 2),
    Sketcher.Constraint("Coincident", 12, 1, 13, 2),
    Sketcher.Constraint("Coincident", 13, 1, 12, 2),
    Sketcher.Constraint("Coincident", 14, 1, 15, 2),
    Sketcher.Constraint("Coincident", 15, 1, 14, 2),
    Sketcher.Constraint("Coincident", 16, 1, 17, 2),
    Sketcher.Constraint("Coincident", 17, 1, 16, 2),
    Sketcher.Constraint("Coincident", 18, 1, 19, 2),
    Sketcher.Constraint("Coincident", 19, 1, 18, 2),
    Sketcher.Constraint("Coincident", 20, 1, 21, 2),
    Sketcher.Constraint("Coincident", 21, 1, 20, 2),
    Sketcher.Constraint("Coincident", 22, 1, 23, 2),
    Sketcher.Constraint("Coincident", 23, 1, 22, 2),
    Sketcher.Constraint("Vertical", 0),
    Sketcher.Constraint("Vertical", 2),
    Sketcher.Constraint("Vertical", 4),
    Sketcher.Constraint("Vertical", 6),
    Sketcher.Constraint("Vertical", 8),
    Sketcher.Constraint("Vertical", 10),
    Sketcher.Constraint("Vertical", 12),
    Sketcher.Constraint("Vertical", 14),
    Sketcher.Constraint("Vertical", 16),
    Sketcher.Constraint("Vertical", 18),
    Sketcher.Constraint("Vertical", 20),
    Sketcher.Constraint("Vertical", 22),
    Sketcher.Constraint("Equal", 1, 3),
    Sketcher.Constraint("Equal", 3, 5),
    Sketcher.Constraint("Equal", 5, 7),
    Sketcher.Constraint("Equal", 7, 9),
    Sketcher.Constraint("Equal", 9, 11),
    Sketcher.Constraint("Equal", 11, 13),
    Sketcher.Constraint("Equal", 13, 15),
    Sketcher.Constraint("Equal", 15, 17),
    Sketcher.Constraint("Equal", 17, 19),
    Sketcher.Constraint("Equal", 19, 21),
    Sketcher.Constraint("Equal", 21, 23),
    Sketcher.Constraint("PointOnObject", 13, 3, -2),
    Sketcher.Constraint("PointOnObject", 15, 3, -2),
    Sketcher.Constraint("PointOnObject", 17, 3, -2),
    Sketcher.Constraint("PointOnObject", 19, 3, -2),
    Sketcher.Constraint("PointOnObject", 21, 3, -2),
    Sketcher.Constraint("PointOnObject", 23, 3, -2),
    Sketcher.Constraint("PointOnObject", 12, 1, -2),
    Sketcher.Constraint("PointOnObject", 14, 1, -2),
    Sketcher.Constraint("PointOnObject", 16, 1, -2),
    Sketcher.Constraint("PointOnObject", 18, 1, -2),
    Sketcher.Constraint("PointOnObject", 20, 1, -2),
    Sketcher.Constraint("PointOnObject", 22, 1, -2),
    Sketcher.Constraint("Horizontal", 11, 3, 13, 3),
    Sketcher.Constraint("Horizontal", 9, 3, 15, 3),
    Sketcher.Constraint("Horizontal", 7, 3, 17, 3),
    Sketcher.Constraint("Horizontal", 5, 3, 19, 3),
    Sketcher.Constraint("Horizontal", 3, 3, 21, 3),
    Sketcher.Constraint("Horizontal", 1, 3, 23, 3),
    Sketcher.Constraint("Vertical", 1, 3, 3, 3),
    Sketcher.Constraint("Vertical", 3, 3, 5, 3),
    Sketcher.Constraint("Vertical", 5, 3, 7, 3),
    Sketcher.Constraint("Vertical", 7, 3, 9, 3),
    Sketcher.Constraint("Vertical", 9, 3, 11, 3),
    Sketcher.Constraint("Vertical", 11, 3, 0, 1),
    Sketcher.Constraint("Vertical", 1, 1, 2, 1),
    Sketcher.Constraint("Vertical", 3, 1, 4, 1),
    Sketcher.Constraint("Vertical", 5, 1, 6, 1),
    Sketcher.Constraint("Vertical", 7, 1, 8, 1),
    Sketcher.Constraint("Vertical", 9, 1, 10, 1),
    Sketcher.Constraint("Radius", 1, Q("1 mm")),
    Sketcher.Constraint("DistanceX", -1, 1, 1, 3, Q("31 mm")),
    Sketcher.Constraint("DistanceY", 1, 3, -1, 1, Q("9 mm")),
    Sketcher.Constraint("DistanceY", 3, 3, -1, 1, Q("26 mm")),
    Sketcher.Constraint("DistanceY", 5, 3, -1, 1, Q("45 mm")),
    Sketcher.Constraint("DistanceY", 7, 3, -1, 1, Q("62 mm")),
    Sketcher.Constraint("DistanceY", 9, 3, -1, 1, Q("81 mm")),
    Sketcher.Constraint("DistanceY", 11, 3, -1, 1, Q("98 mm")),
])
pocket2 = doc.addObject("PartDesign::Pocket", "Pocket001")
body.addObject(pocket2)
pocket2.Profile = sketch5
pocket2.Type = "ThroughAll"

sketch6 = doc.addObject("Sketcher::SketchObject", "Sketch005")
body.addObject(sketch6)
sketch6.AttachmentSupport = (doc.YZ_Plane, [""])
sketch6.MapMode = "FlatFace"
sketch6.AttachmentOffset = App.Placement(App.Vector(0, 0, 2), App.Rotation())
sketch6.addGeometry([
    Part.LineSegment(App.Vector(28, -22, 0), App.Vector(28, -6, 0)),
    Part.ArcOfCircle(Part.Circle(App.Vector(25, -6, 0), App.Vector(0, 0, 1), 3), math.radians(0), math.radians(180)),
    Part.LineSegment(App.Vector(22, -6, 0), App.Vector(22, -22, 0)),
    Part.ArcOfCircle(Part.Circle(App.Vector(25, -22, 0), App.Vector(0, 0, 1), 3), math.radians(180), math.radians(360)),
    Part.LineSegment(App.Vector(10, -31, 0), App.Vector(10, -6, 0)),
    Part.ArcOfCircle(Part.Circle(App.Vector(7, -6, 0), App.Vector(0, 0, 1), 3), math.radians(0), math.radians(180)),
    Part.LineSegment(App.Vector(4, -6, 0), App.Vector(4, -31, 0)),
    Part.ArcOfCircle(Part.Circle(App.Vector(7, -31, 0), App.Vector(0, 0, 1), 3), math.radians(180), math.radians(360)),
    Part.LineSegment(App.Vector(19, -22, 0), App.Vector(19, -6, 0)),
    Part.ArcOfCircle(Part.Circle(App.Vector(16, -6, 0), App.Vector(0, 0, 1), 3), math.radians(0), math.radians(180)),
    Part.LineSegment(App.Vector(13, -6, 0), App.Vector(13, -22, 0)),
    Part.ArcOfCircle(Part.Circle(App.Vector(16, -22, 0), App.Vector(0, 0, 1), 3), math.radians(180), math.radians(360)),
    Part.LineSegment(App.Vector(10, -66, 0), App.Vector(10, -41, 0)),
    Part.ArcOfCircle(Part.Circle(App.Vector(7, -41, 0), App.Vector(0, 0, 1), 3), math.radians(0), math.radians(180)),
    Part.LineSegment(App.Vector(4, -41, 0), App.Vector(4, -66, 0)),
    Part.ArcOfCircle(Part.Circle(App.Vector(7, -66, 0), App.Vector(0, 0, 1), 3), math.radians(180), math.radians(360)),
    Part.LineSegment(App.Vector(10, -101, 0), App.Vector(10, -76, 0)),
    Part.ArcOfCircle(Part.Circle(App.Vector(7, -76, 0), App.Vector(0, 0, 1), 3), math.radians(0), math.radians(180)),
    Part.LineSegment(App.Vector(4, -76, 0), App.Vector(4, -101, 0)),
    Part.ArcOfCircle(Part.Circle(App.Vector(7, -101, 0), App.Vector(0, 0, 1), 3), math.radians(180), math.radians(360)),
    Part.LineSegment(App.Vector(28, -101, 0), App.Vector(28, -59, 0)),
    Part.ArcOfCircle(Part.Circle(App.Vector(25, -59, 0), App.Vector(0, 0, 1), 3), math.radians(0), math.radians(180)),
    Part.LineSegment(App.Vector(22, -59, 0), App.Vector(22, -101, 0)),
    Part.ArcOfCircle(Part.Circle(App.Vector(25, -101, 0), App.Vector(0, 0, 1), 3), math.radians(180), math.radians(360)),
    Part.LineSegment(App.Vector(19, -101, 0), App.Vector(19, -91, 0)),
    Part.ArcOfCircle(Part.Circle(App.Vector(16, -91, 0), App.Vector(0, 0, 1), 3), math.radians(0), math.radians(180)),
    Part.LineSegment(App.Vector(13, -91, 0), App.Vector(13, -101, 0)),
    Part.ArcOfCircle(Part.Circle(App.Vector(16, -101, 0), App.Vector(0, 0, 1), 3), math.radians(180), math.radians(360)),
], False)
sketch6.addConstraint([
    Sketcher.Constraint("Tangent", 0, 2, 1, 1),
    Sketcher.Constraint("Tangent", 1, 2, 2, 1),
    Sketcher.Constraint("Tangent", 2, 2, 3, 1),
    Sketcher.Constraint("Tangent", 3, 2, 0, 1),
    Sketcher.Constraint("Tangent", 4, 2, 5, 1),
    Sketcher.Constraint("Tangent", 5, 2, 6, 1),
    Sketcher.Constraint("Tangent", 6, 2, 7, 1),
    Sketcher.Constraint("Tangent", 7, 2, 4, 1),
    Sketcher.Constraint("Tangent", 8, 2, 9, 1),
    Sketcher.Constraint("Tangent", 9, 2, 10, 1),
    Sketcher.Constraint("Tangent", 10, 2, 11, 1),
    Sketcher.Constraint("Tangent", 11, 2, 8, 1),
    Sketcher.Constraint("Tangent", 12, 2, 13, 1),
    Sketcher.Constraint("Tangent", 13, 2, 14, 1),
    Sketcher.Constraint("Tangent", 14, 2, 15, 1),
    Sketcher.Constraint("Tangent", 15, 2, 12, 1),
    Sketcher.Constraint("Tangent", 16, 2, 17, 1),
    Sketcher.Constraint("Tangent", 17, 2, 18, 1),
    Sketcher.Constraint("Tangent", 18, 2, 19, 1),
    Sketcher.Constraint("Tangent", 19, 2, 16, 1),
    Sketcher.Constraint("Tangent", 20, 2, 21, 1),
    Sketcher.Constraint("Tangent", 21, 2, 22, 1),
    Sketcher.Constraint("Tangent", 22, 2, 23, 1),
    Sketcher.Constraint("Tangent", 23, 2, 20, 1),
    Sketcher.Constraint("Tangent", 24, 2, 25, 1),
    Sketcher.Constraint("Tangent", 25, 2, 26, 1),
    Sketcher.Constraint("Tangent", 26, 2, 27, 1),
    Sketcher.Constraint("Tangent", 27, 2, 24, 1),
    Sketcher.Constraint("Vertical", 0),
    Sketcher.Constraint("Vertical", 2),
    Sketcher.Constraint("Vertical", 4),
    Sketcher.Constraint("Vertical", 6),
    Sketcher.Constraint("Vertical", 8),
    Sketcher.Constraint("Vertical", 10),
    Sketcher.Constraint("Vertical", 12),
    Sketcher.Constraint("Vertical", 14),
    Sketcher.Constraint("Vertical", 16),
    Sketcher.Constraint("Vertical", 18),
    Sketcher.Constraint("Vertical", 20),
    Sketcher.Constraint("Vertical", 22),
    Sketcher.Constraint("Vertical", 24),
    Sketcher.Constraint("Vertical", 26),
    Sketcher.Constraint("Equal", 3, 5),
    Sketcher.Constraint("Equal", 7, 9),
    Sketcher.Constraint("Equal", 11, 13),
    Sketcher.Constraint("Equal", 15, 17),
    Sketcher.Constraint("Equal", 19, 21),
    Sketcher.Constraint("Equal", 23, 25),
    Sketcher.Constraint("Horizontal", 1, 3, 5, 3),
    Sketcher.Constraint("Horizontal", 5, 3, 9, 3),
    Sketcher.Constraint("Horizontal", 3, 3, 11, 3),
    Sketcher.Constraint("Horizontal", 19, 3, 23, 3),
    Sketcher.Constraint("Horizontal", 23, 3, 27, 3),
    Sketcher.Constraint("Vertical", 7, 3, 13, 3),
    Sketcher.Constraint("Vertical", 15, 3, 17, 3),
    Sketcher.Constraint("Vertical", 3, 3, 21, 3),
    Sketcher.Constraint("Vertical", 11, 3, 25, 3),
    Sketcher.Constraint("Equal", 6, 12),
    Sketcher.Constraint("Equal", 14, 16),
    Sketcher.Constraint("Radius", 1, Q("3 mm")),
    Sketcher.Constraint("DistanceY", 0, 1, 0, 2, Q("16 mm")),
    Sketcher.Constraint("DistanceY", 4, 1, 4, 2, Q("25 mm")),
    Sketcher.Constraint("DistanceY", 20, 1, 20, 2, Q("42 mm")),
    Sketcher.Constraint("DistanceY", 24, 1, 24, 2, Q("10 mm")),
    Sketcher.Constraint("DistanceX", -1, 1, 1, 3, Q("25 mm")),
    Sketcher.Constraint("DistanceY", 1, 3, -1, 1, Q("6 mm")),
    Sketcher.Constraint("DistanceX", -1, 1, 5, 3, Q("7 mm")),
    Sketcher.Constraint("DistanceX", -1, 1, 9, 3, Q("16 mm")),
    Sketcher.Constraint("DistanceY", 13, 3, -1, 1, Q("41 mm")),
    Sketcher.Constraint("DistanceY", 17, 3, -1, 1, Q("76 mm")),
])
pocket3 = doc.addObject("PartDesign::Pocket", "Pocket002")
body.addObject(pocket3)
pocket3.Profile = sketch6
pocket3.Type = "ThroughAll"

doc.recompute()
